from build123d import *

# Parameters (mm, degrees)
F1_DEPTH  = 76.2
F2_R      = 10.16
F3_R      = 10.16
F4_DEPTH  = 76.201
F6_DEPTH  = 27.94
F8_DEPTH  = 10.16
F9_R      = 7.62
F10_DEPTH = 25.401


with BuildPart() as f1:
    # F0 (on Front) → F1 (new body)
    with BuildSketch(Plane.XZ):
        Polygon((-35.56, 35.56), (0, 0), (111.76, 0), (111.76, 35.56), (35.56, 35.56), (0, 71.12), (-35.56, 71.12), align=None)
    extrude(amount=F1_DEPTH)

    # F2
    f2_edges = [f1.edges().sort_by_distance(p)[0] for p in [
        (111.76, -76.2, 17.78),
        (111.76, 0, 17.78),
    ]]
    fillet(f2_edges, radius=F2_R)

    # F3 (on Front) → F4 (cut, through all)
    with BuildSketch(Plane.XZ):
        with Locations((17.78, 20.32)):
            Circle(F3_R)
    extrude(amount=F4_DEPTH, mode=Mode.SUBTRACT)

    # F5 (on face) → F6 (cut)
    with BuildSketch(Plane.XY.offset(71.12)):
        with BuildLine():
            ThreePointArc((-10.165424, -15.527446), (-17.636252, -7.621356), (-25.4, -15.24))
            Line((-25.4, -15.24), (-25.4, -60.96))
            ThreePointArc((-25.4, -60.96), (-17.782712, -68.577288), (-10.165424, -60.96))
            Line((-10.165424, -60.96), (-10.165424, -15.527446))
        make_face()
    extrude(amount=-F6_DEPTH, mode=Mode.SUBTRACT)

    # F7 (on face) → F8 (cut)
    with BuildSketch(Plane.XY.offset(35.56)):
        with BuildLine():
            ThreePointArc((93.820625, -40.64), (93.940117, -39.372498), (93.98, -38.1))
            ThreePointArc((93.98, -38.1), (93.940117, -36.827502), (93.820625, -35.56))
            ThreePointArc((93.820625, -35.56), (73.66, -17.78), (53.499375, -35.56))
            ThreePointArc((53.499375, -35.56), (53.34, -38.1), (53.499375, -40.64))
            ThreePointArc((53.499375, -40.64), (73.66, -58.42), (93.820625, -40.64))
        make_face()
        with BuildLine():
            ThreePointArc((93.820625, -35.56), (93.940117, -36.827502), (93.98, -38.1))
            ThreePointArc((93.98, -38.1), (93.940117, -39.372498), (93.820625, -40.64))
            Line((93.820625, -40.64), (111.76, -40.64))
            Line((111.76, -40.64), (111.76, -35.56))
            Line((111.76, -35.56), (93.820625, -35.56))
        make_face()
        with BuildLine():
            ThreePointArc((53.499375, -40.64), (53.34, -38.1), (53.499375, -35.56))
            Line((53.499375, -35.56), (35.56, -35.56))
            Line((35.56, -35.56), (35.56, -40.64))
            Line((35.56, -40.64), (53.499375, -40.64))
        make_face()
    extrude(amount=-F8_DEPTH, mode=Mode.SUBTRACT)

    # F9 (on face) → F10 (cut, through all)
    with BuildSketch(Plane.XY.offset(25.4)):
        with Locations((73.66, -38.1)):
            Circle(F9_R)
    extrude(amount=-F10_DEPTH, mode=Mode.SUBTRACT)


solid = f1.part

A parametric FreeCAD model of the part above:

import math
import FreeCAD as App
import Part
import Sketcher
from FreeCAD import Vector
Q = App.Units.Quantity


def edges_at(feature, points):
    """Names of the edges that pass closest to the given points."""
    edges = feature.Shape.Edges
    near = lambda p: min(range(len(edges)), key=lambda i: edges[i].distToShape(Part.Vertex(*p))[0])
    return sorted({f"Edge{near(p) + 1}" for p in points})


def add_polygon(sketch, points):
    """Adds a closed chain of lines whose ends are joined by coincident constraints."""
    first, n = sketch.GeometryCount, len(points)
    for a, b in zip(points, points[1:] + points[:1]):
        sketch.addGeometry(Part.LineSegment(App.Vector(*a, 0), App.Vector(*b, 0)), False)
    for i in range(n):
        sketch.addConstraint(Sketcher.Constraint("Coincident", first + i, 2, first + (i + 1) % n, 1))

doc = App.newDocument("Part")
body = doc.addObject("PartDesign::Body", "Body")

# Sketch on XZ plane
sketch1 = body.newObject("Sketcher::SketchObject", "Sketch")
sketch1.AttachmentSupport = (doc.getObject("XZ_Plane"), [""])
sketch1.MapMode = "FlatFace"
add_polygon(sketch1, [(-36, 36), (0, 0), (112, 0), (112, 36), (36, 36), (0, 71), (-36, 71)])  # lines 0-6
sketch1.addConstraint(Sketcher.Constraint("Horizontal", 1))
sketch1.addConstraint(Sketcher.Constraint("Vertical", 2))
sketch1.addConstraint(Sketcher.Constraint("Horizontal", 3))
sketch1.addConstraint(Sketcher.Constraint("Horizontal", 5))
sketch1.addConstraint(Sketcher.Constraint("Vertical", 6))
sketch1.addConstraint(Sketcher.Constraint("Coincident", 0, 2, -1, 1))
sketch1.addConstraint(Sketcher.Constraint("Symmetric", 3, 2, 6, 2, -2))
sketch1.addConstraint(Sketcher.Constraint("PointOnObject", 4, 2, -2))
sketch1.addConstraint(Sketcher.Constraint("Parallel", 0, 4))
sketch1.addConstraint(Sketcher.Constraint("Equal", 5, 2))
sketch1.addConstraint(Sketcher.Constraint("DistanceX", 3, 2, 3, 1, Q("3 in")))
sketch1.addConstraint(Sketcher.Constraint("DistanceX", 1, 1, 1, 2, Q("4.4 in")))
pad1 = body.newObject("PartDesign::Pad", "Pad")
pad1.Profile = sketch1
pad1.Length = Q("3 in")
doc.recompute()

fillet = body.newObject("PartDesign::Fillet", "Fillet")
fillet.Base = (pad1, edges_at(pad1, [(111.76, -76.2, 17.78), (111.76, 0, 17.78)]))
fillet.Radius = Q("0.4 in")

# Sketch on XZ plane
sketch2 = body.newObject("Sketcher::SketchObject", "Sketch001")
sketch2.AttachmentSupport = (doc.getObject("XZ_Plane"), [""])
sketch2.MapMode = "FlatFace"
sketch2.addGeometry(Part.Circle(Vector(18, 20, 0), Vector(0, 0, 1), 10), False)
sketch2.addConstraint(Sketcher.Constraint("Diameter", 0, Q("0.8 in")))
sketch2.addConstraint(Sketcher.Constraint("DistanceX", -1, 1, 0, 3, Q("0.7 in")))
sketch2.addConstraint(Sketcher.Constraint("DistanceY", -1, 1, 0, 3, Q("0.8 in")))
pocket1 = body.newObject("PartDesign::Pocket", "Pocket")
pocket1.Profile = sketch2
pocket1.Type = "ThroughAll"
pocket1.Reversed = True

# Sketch on XY plane
sketch3 = body.newObject("Sketcher::SketchObject", "Sketch002")
sketch3.AttachmentSupport = (doc.getObject("XY_Plane"), [""])
sketch3.MapMode = "FlatFace"
sketch3.AttachmentOffset = App.Placement(Vector(0, 0, 2.8 * 25.4), App.Rotation())
sketch3.addGeometry(Part.ArcOfCircle(Part.Circle(Vector(-18, -15, 0), Vector(0, 0, 1), 8), math.radians(-2), math.radians(180)), False)
sketch3.addGeometry(Part.LineSegment(Vector(-25, -15, 0), Vector(-25, -61, 0)), False)
sketch3.addGeometry(Part.ArcOfCircle(Part.Circle(Vector(-18, -61, 0), Vector(0, 0, 1), 8), math.radians(180), math.radians(360)), False)
sketch3.addGeometry(Part.LineSegment(Vector(-10, -61, 0), Vector(-10, -16, 0)), False)
sketch3.addConstraint(Sketcher.Constraint("Tangent", 0, 2, 1, 1))
sketch3.addConstraint(Sketcher.Constraint("Tangent", 1, 2, 2, 1))
sketch3.addConstraint(Sketcher.Constraint("Tangent", 2, 2, 3, 1))
sketch3.addConstraint(Sketcher.Constraint("Coincident", 3, 2, 0, 1))
sketch3.addConstraint(Sketcher.Constraint("Vertical", 1))
sketch3.addConstraint(Sketcher.Constraint("Vertical", 3))
sketch3.addConstraint(Sketcher.Constraint("Radius", 0, Q("0.3 in")))
sketch3.addConstraint(Sketcher.Constraint("DistanceY", 1, 2, 1, 1, Q("1.8 in")))
sketch3.addConstraint(Sketcher.Constraint("DistanceX", 0, 2, -1, 1, Q("1 in")))
sketch3.addConstraint(Sketcher.Constraint("DistanceY", 0, 3, -1, 1, Q("0.6 in")))
sketch3.addConstraint(Sketcher.Constraint("Radius", 2, Q("7.617288 mm")))
pocket2 = body.newObject("PartDesign::Pocket", "Pocket001")
pocket2.Profile = sketch3
pocket2.Length = Q("1.1 in")

# Sketch on XY plane
sketch4 = body.newObject("Sketcher::SketchObject", "Sketch003")
sketch4.AttachmentSupport = (doc.getObject("XY_Plane"), [""])
sketch4.MapMode = "FlatFace"
sketch4.AttachmentOffset = App.Placement(Vector(0, 0, 1.4 * 25.4), App.Rotation())
sketch4.addGeometry(Part.ArcOfCircle(Part.Circle(Vector(74, -38, 0), Vector(0, 0, 1), 20), math.radians(7), math.radians(173)), False)
sketch4.addGeometry(Part.LineSegment(Vector(53, -36, 0), Vector(36, -36, 0)), False)
sketch4.addGeometry(Part.LineSegment(Vector(36, -36, 0), Vector(36, -41, 0)), False)
sketch4.addGeometry(Part.LineSegment(Vector(36, -41, 0), Vector(53, -41, 0)), False)
sketch4.addGeometry(Part.ArcOfCircle(Part.Circle(Vector(74, -38, 0), Vector(0, 0, 1), 20), math.radians(-173), math.radians(-7)), False)
sketch4.addGeometry(Part.LineSegment(Vector(94, -41, 0), Vector(112, -41, 0)), False)
sketch4.addGeometry(Part.LineSegment(Vector(112, -41, 0), Vector(112, -36, 0)), False)
sketch4.addGeometry(Part.LineSegment(Vector(112, -36, 0), Vector(94, -36, 0)), False)
sketch4.addConstraint(Sketcher.Constraint("Coincident", 0, 2, 1, 1))
sketch4.addConstraint(Sketcher.Constraint("Coincident", 1, 2, 2, 1))
sketch4.addConstraint(Sketcher.Constraint("Coincident", 2, 2, 3, 1))
sketch4.addConstraint(Sketcher.Constraint("Coincident", 3, 2, 4, 1))
sketch4.addConstraint(Sketcher.Constraint("Coincident", 4, 2, 5, 1))
sketch4.addConstraint(Sketcher.Constraint("Coincident", 5, 2, 6, 1))
sketch4.addConstraint(Sketcher.Constraint("Coincident", 6, 2, 7, 1))
sketch4.addConstraint(Sketcher.Constraint("Coincident", 7, 2, 0, 1))
sketch4.addConstraint(Sketcher.Constraint("Horizontal", 1))
sketch4.addConstraint(Sketcher.Constraint("Vertical", 2))
sketch4.addConstraint(Sketcher.Constraint("Horizontal", 3))
sketch4.addConstraint(Sketcher.Constraint("Horizontal", 5))
sketch4.addConstraint(Sketcher.Constraint("Vertical", 6))
sketch4.addConstraint(Sketcher.Constraint("Horizontal", 7))
sketch4.addConstraint(Sketcher.Constraint("Coincident", 4, 3, 0, 3))
sketch4.addConstraint(Sketcher.Constraint("Equal", 0, 4))
sketch4.addConstraint(Sketcher.Constraint("Horizontal", 3, 2, 4, 2))
sketch4.addConstraint(Sketcher.Constraint("Horizontal", 1, 2, 6, 2))
sketch4.addConstraint(Sketcher.Constraint("Vertical", 0, 2, 3, 2))
sketch4.addConstraint(Sketcher.Constraint("Equal", 3, 5))
sketch4.addConstraint(Sketcher.Constraint("Radius", 0, Q("0.8 in")))
sketch4.addConstraint(Sketcher.Constraint("DistanceY", 2, 2, 2, 1, Q("0.2 in")))
sketch4.addConstraint(Sketcher.Constraint("DistanceX", -1, 1, 0, 3, Q("2.9 in")))
sketch4.addConstraint(Sketcher.Constraint("DistanceY", 0, 3, -1, 1, Q("1.5 in")))
sketch4.addConstraint(Sketcher.Constraint("DistanceX", -1, 1, 1, 2, Q("1.4 in")))
pocket3 = body.newObject("PartDesign::Pocket", "Pocket002")
pocket3.Profile = sketch4
pocket3.Length = Q("0.4 in")

# Sketch on XY plane
sketch5 = body.newObject("Sketcher::SketchObject", "Sketch004")
sketch5.AttachmentSupport = (doc.getObject("XY_Plane"), [""])
sketch5.MapMode = "FlatFace"
sketch5.AttachmentOffset = App.Placement(Vector(0, 0, 1 * 25.4), App.Rotation())
sketch5.addGeometry(Part.Circle(Vector(74, -38, 0), Vector(0, 0, 1), 8), False)
sketch5.addConstraint(Sketcher.Constraint("Diameter", 0, Q("0.6 in")))
sketch5.addConstraint(Sketcher.Constraint("DistanceX", -1, 1, 0, 3, Q("2.9 in")))
sketch5.addConstraint(Sketcher.Constraint("DistanceY", 0, 3, -1, 1, Q("1.5 in")))
pocket4 = body.newObject("PartDesign::Pocket", "Pocket003")
pocket4.Profile = sketch5
pocket4.Type = "ThroughAll"

doc.recompute()
